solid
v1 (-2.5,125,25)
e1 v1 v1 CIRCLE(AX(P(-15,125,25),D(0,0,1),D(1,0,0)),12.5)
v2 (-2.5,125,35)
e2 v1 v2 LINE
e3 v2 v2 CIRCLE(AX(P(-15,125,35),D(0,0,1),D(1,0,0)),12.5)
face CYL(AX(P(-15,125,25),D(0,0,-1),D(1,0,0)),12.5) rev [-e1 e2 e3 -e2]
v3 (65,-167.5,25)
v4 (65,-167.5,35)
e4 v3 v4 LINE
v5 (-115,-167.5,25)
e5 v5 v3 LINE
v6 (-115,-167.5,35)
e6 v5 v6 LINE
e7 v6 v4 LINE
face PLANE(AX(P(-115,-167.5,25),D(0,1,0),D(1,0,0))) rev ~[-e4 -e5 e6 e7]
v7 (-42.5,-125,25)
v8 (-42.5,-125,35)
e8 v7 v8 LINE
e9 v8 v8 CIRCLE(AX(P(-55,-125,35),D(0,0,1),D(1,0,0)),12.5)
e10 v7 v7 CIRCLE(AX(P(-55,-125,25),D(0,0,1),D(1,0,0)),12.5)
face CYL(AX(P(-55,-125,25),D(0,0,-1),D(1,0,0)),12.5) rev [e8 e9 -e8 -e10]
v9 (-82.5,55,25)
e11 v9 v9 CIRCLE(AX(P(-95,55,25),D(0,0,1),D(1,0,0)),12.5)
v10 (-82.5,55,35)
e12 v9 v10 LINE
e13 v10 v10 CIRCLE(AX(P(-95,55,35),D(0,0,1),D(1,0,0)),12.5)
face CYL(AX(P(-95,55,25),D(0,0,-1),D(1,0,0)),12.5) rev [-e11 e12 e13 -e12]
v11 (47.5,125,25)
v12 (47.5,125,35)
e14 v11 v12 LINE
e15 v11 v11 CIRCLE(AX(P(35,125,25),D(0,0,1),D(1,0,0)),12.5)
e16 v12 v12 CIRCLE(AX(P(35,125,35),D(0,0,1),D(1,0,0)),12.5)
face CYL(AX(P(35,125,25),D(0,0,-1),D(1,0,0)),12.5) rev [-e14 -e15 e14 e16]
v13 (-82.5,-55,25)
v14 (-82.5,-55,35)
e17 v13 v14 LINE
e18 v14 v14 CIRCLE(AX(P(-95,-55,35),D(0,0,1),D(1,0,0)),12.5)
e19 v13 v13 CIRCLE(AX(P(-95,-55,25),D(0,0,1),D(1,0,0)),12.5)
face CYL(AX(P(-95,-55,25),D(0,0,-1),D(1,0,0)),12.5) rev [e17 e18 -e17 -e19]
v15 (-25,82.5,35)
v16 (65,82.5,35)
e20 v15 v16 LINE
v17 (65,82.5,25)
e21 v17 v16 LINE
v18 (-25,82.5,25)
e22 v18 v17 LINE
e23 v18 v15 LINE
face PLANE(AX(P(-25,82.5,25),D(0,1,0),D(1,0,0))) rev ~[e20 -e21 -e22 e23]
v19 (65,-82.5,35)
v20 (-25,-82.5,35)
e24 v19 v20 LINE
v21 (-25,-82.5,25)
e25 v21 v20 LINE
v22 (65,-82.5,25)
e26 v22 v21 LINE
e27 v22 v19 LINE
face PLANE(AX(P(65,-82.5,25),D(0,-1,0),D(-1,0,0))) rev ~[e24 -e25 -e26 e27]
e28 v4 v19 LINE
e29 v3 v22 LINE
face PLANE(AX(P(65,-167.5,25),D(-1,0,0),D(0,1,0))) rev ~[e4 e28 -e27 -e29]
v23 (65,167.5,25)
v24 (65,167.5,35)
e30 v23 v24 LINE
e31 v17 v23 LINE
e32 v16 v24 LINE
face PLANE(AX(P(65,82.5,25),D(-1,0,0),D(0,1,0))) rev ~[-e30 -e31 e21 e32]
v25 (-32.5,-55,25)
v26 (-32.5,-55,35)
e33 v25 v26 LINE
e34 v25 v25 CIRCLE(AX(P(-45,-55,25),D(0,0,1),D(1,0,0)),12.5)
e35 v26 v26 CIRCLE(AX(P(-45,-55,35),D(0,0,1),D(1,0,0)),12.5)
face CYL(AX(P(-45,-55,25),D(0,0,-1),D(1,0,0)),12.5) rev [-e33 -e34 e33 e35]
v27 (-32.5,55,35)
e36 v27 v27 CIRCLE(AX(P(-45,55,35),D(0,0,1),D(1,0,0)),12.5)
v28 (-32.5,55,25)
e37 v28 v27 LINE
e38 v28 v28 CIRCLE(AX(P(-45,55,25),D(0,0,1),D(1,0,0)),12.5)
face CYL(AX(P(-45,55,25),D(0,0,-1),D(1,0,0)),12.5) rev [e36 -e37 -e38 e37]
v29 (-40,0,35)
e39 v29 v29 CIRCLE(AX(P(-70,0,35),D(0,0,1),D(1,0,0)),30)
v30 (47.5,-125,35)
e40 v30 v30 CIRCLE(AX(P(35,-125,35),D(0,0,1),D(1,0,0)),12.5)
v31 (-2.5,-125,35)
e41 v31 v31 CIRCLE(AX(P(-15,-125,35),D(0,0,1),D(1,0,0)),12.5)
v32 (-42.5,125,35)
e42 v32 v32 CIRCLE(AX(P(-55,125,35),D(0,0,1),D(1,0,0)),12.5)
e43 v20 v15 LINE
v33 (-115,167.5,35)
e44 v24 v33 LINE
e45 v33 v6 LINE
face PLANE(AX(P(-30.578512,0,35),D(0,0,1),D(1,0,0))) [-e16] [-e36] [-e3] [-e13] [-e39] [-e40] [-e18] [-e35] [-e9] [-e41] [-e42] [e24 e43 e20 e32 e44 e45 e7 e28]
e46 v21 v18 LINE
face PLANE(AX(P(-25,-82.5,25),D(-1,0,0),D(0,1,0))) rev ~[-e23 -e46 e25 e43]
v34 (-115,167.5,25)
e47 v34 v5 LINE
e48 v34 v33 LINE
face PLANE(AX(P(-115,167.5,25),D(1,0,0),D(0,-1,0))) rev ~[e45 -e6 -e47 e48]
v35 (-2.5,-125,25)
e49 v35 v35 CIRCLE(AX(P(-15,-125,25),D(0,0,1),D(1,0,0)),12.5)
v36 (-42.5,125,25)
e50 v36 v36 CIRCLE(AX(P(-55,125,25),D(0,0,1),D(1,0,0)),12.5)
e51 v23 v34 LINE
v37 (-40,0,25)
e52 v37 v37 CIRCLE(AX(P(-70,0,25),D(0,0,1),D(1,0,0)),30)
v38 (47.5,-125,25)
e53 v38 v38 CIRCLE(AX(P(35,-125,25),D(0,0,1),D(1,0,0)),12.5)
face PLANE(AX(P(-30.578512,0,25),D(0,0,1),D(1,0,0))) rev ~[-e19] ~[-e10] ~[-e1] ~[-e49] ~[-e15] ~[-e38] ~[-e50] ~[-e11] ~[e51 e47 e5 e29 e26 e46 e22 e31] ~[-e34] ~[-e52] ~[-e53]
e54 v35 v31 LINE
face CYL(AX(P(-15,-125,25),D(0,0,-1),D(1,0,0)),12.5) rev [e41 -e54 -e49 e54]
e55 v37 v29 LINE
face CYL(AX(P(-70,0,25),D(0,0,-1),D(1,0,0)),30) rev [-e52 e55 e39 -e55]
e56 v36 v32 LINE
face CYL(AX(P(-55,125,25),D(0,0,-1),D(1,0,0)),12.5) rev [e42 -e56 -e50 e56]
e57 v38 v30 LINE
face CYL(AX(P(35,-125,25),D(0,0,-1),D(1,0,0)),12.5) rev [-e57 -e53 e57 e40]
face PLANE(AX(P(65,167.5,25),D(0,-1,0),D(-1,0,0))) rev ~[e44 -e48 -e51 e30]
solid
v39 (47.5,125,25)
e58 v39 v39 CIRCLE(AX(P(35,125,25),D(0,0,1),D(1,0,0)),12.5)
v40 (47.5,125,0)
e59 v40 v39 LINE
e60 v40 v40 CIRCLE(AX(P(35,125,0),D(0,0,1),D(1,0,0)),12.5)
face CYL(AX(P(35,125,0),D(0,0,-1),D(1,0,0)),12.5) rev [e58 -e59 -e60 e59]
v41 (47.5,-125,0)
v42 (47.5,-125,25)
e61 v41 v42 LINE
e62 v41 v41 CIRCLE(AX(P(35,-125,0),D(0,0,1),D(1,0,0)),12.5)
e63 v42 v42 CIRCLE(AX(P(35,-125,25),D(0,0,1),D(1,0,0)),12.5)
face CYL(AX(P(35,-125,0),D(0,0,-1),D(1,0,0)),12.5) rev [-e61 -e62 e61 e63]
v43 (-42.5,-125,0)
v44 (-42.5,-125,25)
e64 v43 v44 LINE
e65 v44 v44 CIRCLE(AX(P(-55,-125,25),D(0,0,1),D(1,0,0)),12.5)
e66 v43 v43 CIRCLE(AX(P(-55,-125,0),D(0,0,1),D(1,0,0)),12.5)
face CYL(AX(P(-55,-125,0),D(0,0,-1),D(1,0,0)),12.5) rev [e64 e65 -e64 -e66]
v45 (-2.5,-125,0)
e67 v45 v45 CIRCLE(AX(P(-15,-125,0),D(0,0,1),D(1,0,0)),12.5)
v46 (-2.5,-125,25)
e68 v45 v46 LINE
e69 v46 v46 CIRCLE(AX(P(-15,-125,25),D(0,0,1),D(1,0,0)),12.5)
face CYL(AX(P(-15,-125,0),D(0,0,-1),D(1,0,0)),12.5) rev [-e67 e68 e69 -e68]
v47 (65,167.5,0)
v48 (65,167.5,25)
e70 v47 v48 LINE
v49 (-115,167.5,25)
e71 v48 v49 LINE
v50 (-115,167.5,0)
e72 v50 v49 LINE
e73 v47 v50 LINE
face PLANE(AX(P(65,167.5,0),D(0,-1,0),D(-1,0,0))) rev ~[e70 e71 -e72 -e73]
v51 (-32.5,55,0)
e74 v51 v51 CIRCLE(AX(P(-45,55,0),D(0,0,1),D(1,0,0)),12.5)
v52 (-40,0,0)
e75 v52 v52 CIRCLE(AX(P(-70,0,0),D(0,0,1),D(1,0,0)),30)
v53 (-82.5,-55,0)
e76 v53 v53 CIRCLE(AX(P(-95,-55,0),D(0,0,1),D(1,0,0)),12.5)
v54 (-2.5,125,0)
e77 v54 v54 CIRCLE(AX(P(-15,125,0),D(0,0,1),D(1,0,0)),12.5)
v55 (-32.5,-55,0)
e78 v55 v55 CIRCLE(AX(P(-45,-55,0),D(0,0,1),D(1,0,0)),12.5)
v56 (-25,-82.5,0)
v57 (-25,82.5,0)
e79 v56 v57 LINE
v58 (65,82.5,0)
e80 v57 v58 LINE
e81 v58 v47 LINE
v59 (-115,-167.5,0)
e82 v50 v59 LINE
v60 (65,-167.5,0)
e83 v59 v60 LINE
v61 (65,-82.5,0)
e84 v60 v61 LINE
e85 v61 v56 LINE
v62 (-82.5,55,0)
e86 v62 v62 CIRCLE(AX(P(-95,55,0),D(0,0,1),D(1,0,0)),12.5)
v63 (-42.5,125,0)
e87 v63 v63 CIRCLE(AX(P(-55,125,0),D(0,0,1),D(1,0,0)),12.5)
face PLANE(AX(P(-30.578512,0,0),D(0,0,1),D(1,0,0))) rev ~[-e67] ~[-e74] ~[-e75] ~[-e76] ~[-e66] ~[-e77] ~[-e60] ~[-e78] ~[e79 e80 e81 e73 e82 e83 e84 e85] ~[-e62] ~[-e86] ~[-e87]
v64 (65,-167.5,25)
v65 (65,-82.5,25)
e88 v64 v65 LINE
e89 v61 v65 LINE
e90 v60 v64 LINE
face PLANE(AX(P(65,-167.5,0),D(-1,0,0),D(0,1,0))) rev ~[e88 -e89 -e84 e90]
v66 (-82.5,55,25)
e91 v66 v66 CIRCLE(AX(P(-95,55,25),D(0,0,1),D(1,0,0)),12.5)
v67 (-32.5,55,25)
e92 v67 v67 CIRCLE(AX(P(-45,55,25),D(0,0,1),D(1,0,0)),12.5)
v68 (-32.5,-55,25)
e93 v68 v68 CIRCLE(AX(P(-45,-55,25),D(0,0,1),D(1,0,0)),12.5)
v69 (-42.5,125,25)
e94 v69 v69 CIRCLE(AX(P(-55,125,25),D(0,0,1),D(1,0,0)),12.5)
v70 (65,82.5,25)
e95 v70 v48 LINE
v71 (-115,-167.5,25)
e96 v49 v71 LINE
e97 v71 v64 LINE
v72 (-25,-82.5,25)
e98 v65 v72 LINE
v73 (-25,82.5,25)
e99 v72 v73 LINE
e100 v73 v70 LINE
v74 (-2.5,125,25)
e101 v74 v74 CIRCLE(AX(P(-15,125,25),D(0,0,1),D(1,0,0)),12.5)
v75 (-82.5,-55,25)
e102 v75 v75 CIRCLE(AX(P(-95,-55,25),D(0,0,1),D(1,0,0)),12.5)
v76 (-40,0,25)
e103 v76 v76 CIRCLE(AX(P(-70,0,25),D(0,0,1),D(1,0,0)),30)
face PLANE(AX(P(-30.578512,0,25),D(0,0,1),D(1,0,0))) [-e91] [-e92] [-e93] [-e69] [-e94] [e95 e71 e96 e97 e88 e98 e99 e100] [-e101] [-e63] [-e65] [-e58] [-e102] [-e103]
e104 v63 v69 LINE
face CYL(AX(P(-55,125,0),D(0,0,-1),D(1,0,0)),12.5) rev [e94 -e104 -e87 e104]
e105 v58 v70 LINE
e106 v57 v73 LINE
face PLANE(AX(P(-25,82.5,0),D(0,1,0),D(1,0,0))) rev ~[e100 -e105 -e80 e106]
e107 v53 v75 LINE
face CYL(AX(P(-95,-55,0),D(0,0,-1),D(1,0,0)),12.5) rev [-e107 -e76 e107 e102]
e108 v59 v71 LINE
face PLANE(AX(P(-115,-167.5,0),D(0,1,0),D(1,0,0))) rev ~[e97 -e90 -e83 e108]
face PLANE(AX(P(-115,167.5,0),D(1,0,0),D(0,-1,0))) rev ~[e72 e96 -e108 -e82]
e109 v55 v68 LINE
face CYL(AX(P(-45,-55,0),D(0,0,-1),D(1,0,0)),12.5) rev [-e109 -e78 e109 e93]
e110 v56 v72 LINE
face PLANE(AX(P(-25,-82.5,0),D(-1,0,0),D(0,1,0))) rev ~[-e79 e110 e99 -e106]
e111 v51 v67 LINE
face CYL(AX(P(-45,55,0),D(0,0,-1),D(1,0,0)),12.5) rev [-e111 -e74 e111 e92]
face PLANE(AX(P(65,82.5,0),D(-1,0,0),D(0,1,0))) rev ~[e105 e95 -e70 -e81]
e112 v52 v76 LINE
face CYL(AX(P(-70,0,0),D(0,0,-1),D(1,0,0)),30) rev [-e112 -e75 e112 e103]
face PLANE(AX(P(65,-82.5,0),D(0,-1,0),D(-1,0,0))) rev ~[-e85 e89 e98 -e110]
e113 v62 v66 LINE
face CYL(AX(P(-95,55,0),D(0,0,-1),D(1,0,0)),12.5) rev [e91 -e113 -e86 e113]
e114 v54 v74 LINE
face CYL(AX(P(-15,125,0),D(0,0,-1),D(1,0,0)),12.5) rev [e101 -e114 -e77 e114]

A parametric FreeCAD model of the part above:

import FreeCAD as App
import Part
import Sketcher
from FreeCAD import Vector


def add_polygon(sketch, points):
    """Adds a closed chain of lines whose ends are joined by coincident constraints."""
    first, n = sketch.GeometryCount, len(points)
    for a, b in zip(points, points[1:] + points[:1]):
        sketch.addGeometry(Part.LineSegment(App.Vector(*a, 0), App.Vector(*b, 0)), False)
    for i in range(n):
        sketch.addConstraint(Sketcher.Constraint("Coincident", first + i, 2, first + (i + 1) % n, 1))

doc = App.newDocument("Part")
body = doc.addObject("PartDesign::Body", "Body")

# Sketch on XY plane
sketch1 = doc.addObject("Sketcher::SketchObject", "Sketch")
body.addObject(sketch1)
sketch1.AttachmentSupport = (doc.XY_Plane, [""])
sketch1.MapMode = "FlatFace"
add_polygon(sketch1, [(-25, 82.5), (65, 82.5), (65, 167.5), (-115, 167.5), (-115, -167.5), (65, -167.5), (65, -82.5), (-25, -82.5)])  # lines 0-7
sketch1.addGeometry(Part.Circle(Vector(-55, -125, 0), Vector(0, 0, 1), 12.5), False)  # 8
sketch1.addGeometry(Part.Circle(Vector(-95, -55, 0), Vector(0, 0, 1), 12.5), False)  # 9
sketch1.addGeometry(Part.Circle(Vector(-45, -55, 0), Vector(0, 0, 1), 12.5), False)  # 10
sketch1.addGeometry(Part.Circle(Vector(-15, -125, 0), Vector(0, 0, 1), 12.5), False)  # 11
sketch1.addGeometry(Part.Circle(Vector(35, -125, 0), Vector(0, 0, 1), 12.5), False)  # 12
sketch1.addGeometry(Part.Circle(Vector(-70, 0, 0), Vector(0, 0, 1), 30), False)  # 13
sketch1.addGeometry(Part.Circle(Vector(-95, 55, 0), Vector(0, 0, 1), 12.5), False)  # 14
sketch1.addGeometry(Part.Circle(Vector(-45, 55, 0), Vector(0, 0, 1), 12.5), False)  # 15
sketch1.addGeometry(Part.Circle(Vector(-55, 125, 0), Vector(0, 0, 1), 12.5), False)  # 16
sketch1.addGeometry(Part.Circle(Vector(-15, 125, 0), Vector(0, 0, 1), 12.5), False)  # 17
sketch1.addGeometry(Part.Circle(Vector(35, 125, 0), Vector(0, 0, 1), 12.5), False)  # 18
sketch1.addConstraint([
    Sketcher.Constraint("Horizontal", 0),
    Sketcher.Constraint("Vertical", 1),
    Sketcher.Constraint("Horizontal", 2),
    Sketcher.Constraint("Vertical", 3),
    Sketcher.Constraint("Horizontal", 4),
    Sketcher.Constraint("Vertical", 5),
    Sketcher.Constraint("Horizontal", 6),
    Sketcher.Constraint("Vertical", 7),
    Sketcher.Constraint("Equal", 8, 9),
    Sketcher.Constraint("Equal", 9, 10),
    Sketcher.Constraint("Equal", 10, 11),
    Sketcher.Constraint("Equal", 11, 12),
    Sketcher.Constraint("Equal", 12, 14),
    Sketcher.Constraint("Equal", 14, 15),
    Sketcher.Constraint("Equal", 15, 16),
    Sketcher.Constraint("Equal", 16, 17),
    Sketcher.Constraint("Equal", 17, 18),
    Sketcher.Constraint("Symmetric", 9, 3, 14, 3, -1),
    Sketcher.Constraint("Symmetric", 10, 3, 15, 3, -1),
    Sketcher.Constraint("Symmetric", 8, 3, 16, 3, -1),
    Sketcher.Constraint("Symmetric", 11, 3, 17, 3, -1),
    Sketcher.Constraint("Symmetric", 12, 3, 18, 3, -1),
    Sketcher.Constraint("Symmetric", 1, 2, 4, 2, -1),
    Sketcher.Constraint("PointOnObject", 13, 3, -1),
    Sketcher.Constraint("Horizontal", 9, 3, 10, 3),
    Sketcher.Constraint("Horizontal", 8, 3, 11, 3),
    Sketcher.Constraint("Horizontal", 11, 3, 12, 3),
    Sketcher.Constraint("Equal", 1, 5),
    Sketcher.Constraint("Diameter", 8, 25.0),
    Sketcher.Constraint("Diameter", 13, 60.0),
    Sketcher.Constraint("DistanceX", 0, 1, 0, 2, 90.0),
    Sketcher.Constraint("DistanceX", 2, 2, 2, 1, 180.0),
    Sketcher.Constraint("DistanceY", 1, 1, 1, 2, 85.0),
    Sketcher.Constraint("DistanceY", 3, 2, 3, 1, 335.0),
    Sketcher.Constraint("DistanceX", 8, 3, -1, 1, 55.0),
    Sketcher.Constraint("DistanceY", 8, 3, -1, 1, 125.0),
    Sketcher.Constraint("DistanceX", 9, 3, -1, 1, 95.0),
    Sketcher.Constraint("DistanceY", 9, 3, -1, 1, 55.0),
    Sketcher.Constraint("DistanceX", 10, 3, -1, 1, 45.0),
    Sketcher.Constraint("DistanceX", 11, 3, -1, 1, 15.0),
    Sketcher.Constraint("DistanceX", -1, 1, 12, 3, 35.0),
    Sketcher.Constraint("DistanceX", 13, 3, -1, 1, 70.0),
    Sketcher.Constraint("DistanceX", -1, 1, 0, 2, 65.0),
])
pad1 = doc.addObject("PartDesign::Pad", "Pad")
body.addObject(pad1)
pad1.Profile = sketch1
pad1.Length = 25
body2 = doc.addObject("PartDesign::Body", "Body001")

# Sketch on XY plane
sketch2 = doc.addObject("Sketcher::SketchObject", "Sketch001")
body2.addObject(sketch2)
sketch2.AttachmentSupport = (doc.getObject("XY_Plane001"), [""])
sketch2.MapMode = "FlatFace"
sketch2.AttachmentOffset = App.Placement(Vector(0, 0, 25), App.Rotation())
add_polygon(sketch2, [(-25, -82.5), (-25, 82.5), (65, 82.5), (65, 167.5), (-115, 167.5), (-115, -167.5), (65, -167.5), (65, -82.5)])  # lines 0-7
sketch2.addGeometry(Part.Circle(Vector(-55, -125, 0), Vector(0, 0, 1), 12.5), False)  # 8
sketch2.addGeometry(Part.Circle(Vector(-95, -55, 0), Vector(0, 0, 1), 12.5), False)  # 9
sketch2.addGeometry(Part.Circle(Vector(-45, -55, 0), Vector(0, 0, 1), 12.5), False)  # 10
sketch2.addGeometry(Part.Circle(Vector(-15, -125, 0), Vector(0, 0, 1), 12.5), False)  # 11
sketch2.addGeometry(Part.Circle(Vector(35, -125, 0), Vector(0, 0, 1), 12.5), False)  # 12
sketch2.addGeometry(Part.Circle(Vector(-70, 0, 0), Vector(0, 0, 1), 30), False)  # 13
sketch2.addGeometry(Part.Circle(Vector(-95, 55, 0), Vector(0, 0, 1), 12.5), False)  # 14
sketch2.addGeometry(Part.Circle(Vector(-45, 55, 0), Vector(0, 0, 1), 12.5), False)  # 15
sketch2.addGeometry(Part.Circle(Vector(-55, 125, 0), Vector(0, 0, 1), 12.5), False)  # 16
sketch2.addGeometry(Part.Circle(Vector(-15, 125, 0), Vector(0, 0, 1), 12.5), False)  # 17
sketch2.addGeometry(Part.Circle(Vector(35, 125, 0), Vector(0, 0, 1), 12.5), False)  # 18
sketch2.addConstraint([
    Sketcher.Constraint("Vertical", 0),
    Sketcher.Constraint("Horizontal", 1),
    Sketcher.Constraint("Vertical", 2),
    Sketcher.Constraint("Horizontal", 3),
    Sketcher.Constraint("Vertical", 4),
    Sketcher.Constraint("Horizontal", 5),
    Sketcher.Constraint("Vertical", 6),
    Sketcher.Constraint("Horizontal", 7),
    Sketcher.Constraint("Equal", 8, 9),
    Sketcher.Constraint("Equal", 9, 10),
    Sketcher.Constraint("Equal", 10, 11),
    Sketcher.Constraint("Equal", 11, 12),
    Sketcher.Constraint("Equal", 12, 14),
    Sketcher.Constraint("Equal", 14, 15),
    Sketcher.Constraint("Equal", 15, 16),
    Sketcher.Constraint("Equal", 16, 17),
    Sketcher.Constraint("Equal", 17, 18),
    Sketcher.Constraint("Symmetric", 9, 3, 14, 3, -1),
    Sketcher.Constraint("Symmetric", 10, 3, 15, 3, -1),
    Sketcher.Constraint("Symmetric", 8, 3, 16, 3, -1),
    Sketcher.Constraint("Symmetric", 11, 3, 17, 3, -1),
    Sketcher.Constraint("Symmetric", 12, 3, 18, 3, -1),
    Sketcher.Constraint("Symmetric", 2, 2, 5, 2, -1),
    Sketcher.Constraint("PointOnObject", 13, 3, -1),
    Sketcher.Constraint("Horizontal", 9, 3, 10, 3),
    Sketcher.Constraint("Horizontal", 8, 3, 11, 3),
    Sketcher.Constraint("Horizontal", 11, 3, 12, 3),
    Sketcher.Constraint("Equal", 2, 6),
    Sketcher.Constraint("Diameter", 8, 25.0),
    Sketcher.Constraint("Diameter", 13, 60.0),
    Sketcher.Constraint("DistanceX", 1, 1, 1, 2, 90.0),
    Sketcher.Constraint("DistanceX", 3, 2, 3, 1, 180.0),
    Sketcher.Constraint("DistanceY", 0, 1, 0, 2, 165.0),
    Sketcher.Constraint("DistanceY", 2, 1, 2, 2, 85.0),
    Sketcher.Constraint("DistanceX", 8, 3, -1, 1, 55.0),
    Sketcher.Constraint("DistanceY", 8, 3, -1, 1, 125.0),
    Sketcher.Constraint("DistanceX", 9, 3, -1, 1, 95.0),
    Sketcher.Constraint("DistanceY", 9, 3, -1, 1, 55.0),
    Sketcher.Constraint("DistanceX", 10, 3, -1, 1, 45.0),
    Sketcher.Constraint("DistanceX", 11, 3, -1, 1, 15.0),
    Sketcher.Constraint("DistanceX", -1, 1, 12, 3, 35.0),
    Sketcher.Constraint("DistanceX", 13, 3, -1, 1, 70.0),
    Sketcher.Constraint("DistanceX", 0, 2, -1, 1, 25.0),
])
pad2 = doc.addObject("PartDesign::Pad", "Pad001")
body2.addObject(pad2)
pad2.Profile = sketch2
pad2.Length = 10

doc.recompute()
